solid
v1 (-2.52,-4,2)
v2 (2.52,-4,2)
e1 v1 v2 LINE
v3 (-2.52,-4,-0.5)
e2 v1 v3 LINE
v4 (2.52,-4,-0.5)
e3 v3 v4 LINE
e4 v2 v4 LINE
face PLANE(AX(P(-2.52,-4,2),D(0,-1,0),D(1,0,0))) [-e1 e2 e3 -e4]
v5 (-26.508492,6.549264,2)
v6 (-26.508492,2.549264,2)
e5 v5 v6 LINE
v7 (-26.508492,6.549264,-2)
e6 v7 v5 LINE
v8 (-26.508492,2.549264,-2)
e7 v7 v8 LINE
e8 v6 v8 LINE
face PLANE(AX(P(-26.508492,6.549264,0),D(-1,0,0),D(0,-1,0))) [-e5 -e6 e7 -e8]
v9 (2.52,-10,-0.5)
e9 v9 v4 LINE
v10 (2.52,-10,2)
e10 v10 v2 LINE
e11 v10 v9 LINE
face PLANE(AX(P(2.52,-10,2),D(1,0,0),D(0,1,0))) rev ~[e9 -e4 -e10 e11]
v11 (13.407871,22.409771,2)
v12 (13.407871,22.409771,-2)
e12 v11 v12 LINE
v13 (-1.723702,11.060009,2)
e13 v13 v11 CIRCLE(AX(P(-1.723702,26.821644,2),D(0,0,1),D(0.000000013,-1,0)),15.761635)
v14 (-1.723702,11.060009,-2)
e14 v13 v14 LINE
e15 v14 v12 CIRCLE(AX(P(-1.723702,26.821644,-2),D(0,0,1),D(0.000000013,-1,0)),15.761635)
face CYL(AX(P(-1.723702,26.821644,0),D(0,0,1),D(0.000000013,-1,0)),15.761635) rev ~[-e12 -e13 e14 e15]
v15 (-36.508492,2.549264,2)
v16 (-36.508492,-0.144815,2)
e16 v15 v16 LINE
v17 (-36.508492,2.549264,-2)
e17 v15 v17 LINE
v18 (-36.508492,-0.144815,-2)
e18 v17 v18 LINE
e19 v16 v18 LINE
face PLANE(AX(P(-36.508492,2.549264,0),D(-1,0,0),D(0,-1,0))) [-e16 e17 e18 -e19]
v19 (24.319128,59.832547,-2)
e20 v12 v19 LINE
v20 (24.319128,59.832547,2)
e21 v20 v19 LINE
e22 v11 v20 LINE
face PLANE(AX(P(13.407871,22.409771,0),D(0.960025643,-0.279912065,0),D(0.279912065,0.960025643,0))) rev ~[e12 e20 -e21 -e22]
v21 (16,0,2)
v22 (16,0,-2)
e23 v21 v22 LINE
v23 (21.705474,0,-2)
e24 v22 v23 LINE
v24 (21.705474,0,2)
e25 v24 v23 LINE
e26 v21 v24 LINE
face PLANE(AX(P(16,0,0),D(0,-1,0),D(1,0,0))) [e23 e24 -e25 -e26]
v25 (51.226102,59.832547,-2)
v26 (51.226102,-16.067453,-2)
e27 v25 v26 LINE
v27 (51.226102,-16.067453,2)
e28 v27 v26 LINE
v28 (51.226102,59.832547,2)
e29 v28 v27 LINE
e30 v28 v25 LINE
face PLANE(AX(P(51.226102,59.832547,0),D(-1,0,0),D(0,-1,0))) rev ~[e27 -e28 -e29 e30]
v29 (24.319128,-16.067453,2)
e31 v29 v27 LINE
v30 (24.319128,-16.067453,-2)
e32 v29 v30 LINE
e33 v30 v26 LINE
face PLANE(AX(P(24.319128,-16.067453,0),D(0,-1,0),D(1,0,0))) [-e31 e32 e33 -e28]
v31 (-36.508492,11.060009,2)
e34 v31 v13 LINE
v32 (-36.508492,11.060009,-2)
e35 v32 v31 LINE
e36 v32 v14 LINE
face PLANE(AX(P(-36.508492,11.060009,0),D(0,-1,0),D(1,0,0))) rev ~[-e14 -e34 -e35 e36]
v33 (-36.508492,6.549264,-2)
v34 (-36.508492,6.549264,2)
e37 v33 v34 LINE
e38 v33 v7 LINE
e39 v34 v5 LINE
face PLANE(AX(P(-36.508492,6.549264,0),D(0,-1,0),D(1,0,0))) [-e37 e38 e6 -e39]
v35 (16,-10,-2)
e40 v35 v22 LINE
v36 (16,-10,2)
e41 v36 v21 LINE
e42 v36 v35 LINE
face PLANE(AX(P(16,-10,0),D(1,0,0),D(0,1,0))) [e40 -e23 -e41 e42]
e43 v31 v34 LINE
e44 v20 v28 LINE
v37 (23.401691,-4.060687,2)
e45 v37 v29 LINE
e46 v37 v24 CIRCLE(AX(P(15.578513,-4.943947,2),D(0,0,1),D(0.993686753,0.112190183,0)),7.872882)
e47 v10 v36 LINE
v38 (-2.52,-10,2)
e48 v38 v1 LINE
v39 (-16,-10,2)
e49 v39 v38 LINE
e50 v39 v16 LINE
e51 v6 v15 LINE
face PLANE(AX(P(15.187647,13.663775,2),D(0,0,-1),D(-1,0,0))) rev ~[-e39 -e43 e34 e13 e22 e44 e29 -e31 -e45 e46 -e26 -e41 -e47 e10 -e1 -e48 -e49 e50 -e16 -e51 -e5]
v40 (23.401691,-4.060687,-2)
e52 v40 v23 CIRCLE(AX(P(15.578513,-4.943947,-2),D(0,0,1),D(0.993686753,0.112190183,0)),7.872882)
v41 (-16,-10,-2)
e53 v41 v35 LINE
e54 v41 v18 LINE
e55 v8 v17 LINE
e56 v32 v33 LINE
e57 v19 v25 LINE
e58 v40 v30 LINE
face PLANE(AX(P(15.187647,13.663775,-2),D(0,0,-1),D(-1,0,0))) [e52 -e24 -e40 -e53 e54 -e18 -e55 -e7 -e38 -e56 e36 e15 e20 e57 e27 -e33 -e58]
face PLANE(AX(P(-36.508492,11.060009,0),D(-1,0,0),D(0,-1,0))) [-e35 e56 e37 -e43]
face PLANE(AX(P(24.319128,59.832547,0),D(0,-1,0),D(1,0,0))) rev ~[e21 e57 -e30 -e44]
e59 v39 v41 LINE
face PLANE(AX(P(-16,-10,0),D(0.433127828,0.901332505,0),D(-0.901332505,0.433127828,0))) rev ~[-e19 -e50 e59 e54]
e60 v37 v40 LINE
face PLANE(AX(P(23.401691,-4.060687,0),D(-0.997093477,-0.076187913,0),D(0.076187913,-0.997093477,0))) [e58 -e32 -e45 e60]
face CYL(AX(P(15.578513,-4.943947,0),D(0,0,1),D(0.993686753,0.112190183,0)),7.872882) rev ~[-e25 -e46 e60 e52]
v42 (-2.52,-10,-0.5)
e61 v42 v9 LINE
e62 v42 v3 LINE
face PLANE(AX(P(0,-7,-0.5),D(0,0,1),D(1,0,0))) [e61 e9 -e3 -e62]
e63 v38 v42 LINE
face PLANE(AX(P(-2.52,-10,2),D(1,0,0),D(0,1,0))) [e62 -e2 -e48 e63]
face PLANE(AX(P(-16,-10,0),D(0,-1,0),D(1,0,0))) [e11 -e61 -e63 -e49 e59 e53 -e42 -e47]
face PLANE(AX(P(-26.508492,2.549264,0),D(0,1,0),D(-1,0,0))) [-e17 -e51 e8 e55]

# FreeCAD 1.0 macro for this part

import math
import FreeCAD as App
import Part
import Sketcher

V = App.Vector

doc = App.newDocument("Part")
params = doc.addObject("Spreadsheet::Sheet", "Params")
for row, (alias, value) in enumerate([
    ("sketch1_width", "10 mm"),
    ("sketch1_width2", "10 mm"),
    ("sketch1_width3", "32 mm"),
    ("sketch1_height", "4 mm"),
    ("sketch1_height2", "10 mm"),
    ("pad1_length", "4 mm"),
    ("sketch2_height", "6 mm"),
    ("sketch2_width", "5.04 mm"),
    ("pocket1_length", "2.5 mm"),
], start=1):
    params.set(f"A{row}", alias)
    params.set(f"B{row}", "=" + value)
    params.setAlias(f"B{row}", alias)

body = doc.addObject("PartDesign::Body", "Body")

# Sketch on XY plane
sketch1 = body.newObject("Sketcher::SketchObject", "Sketch")
sketch1.AttachmentSupport = (doc.getObject("XY_Plane"), [""])
sketch1.MapMode = "FlatFace"
sketch1.addGeometry([
    Part.LineSegment(V(-1.723702, 11.060009, 0), V(-36.508492, 11.060009, 0)),  # 0
    Part.LineSegment(V(-36.508492, 11.060009, 0), V(-36.508492, 6.549264, 0)),  # 1
    Part.LineSegment(V(-36.508492, 6.549264, 0), V(-26.508492, 6.549264, 0)),  # 2
    Part.LineSegment(V(-26.508492, 6.549264, 0), V(-26.508492, 2.549264, 0)),  # 3
    Part.LineSegment(V(-26.508492, 2.549264, 0), V(-36.508492, 2.549264, 0)),  # 4
    Part.LineSegment(V(-36.508492, 2.549264, 0), V(-36.508492, -0.144815, 0)),  # 5
    Part.LineSegment(V(-36.508492, -0.144815, 0), V(-16, -10, 0)),  # 6
    Part.LineSegment(V(-16, -10, 0), V(16, -10, 0)),  # 7
    Part.LineSegment(V(16, -10, 0), V(16, 0, 0)),  # 8
    Part.LineSegment(V(16, 0, 0), V(21.705474, 0, 0)),  # 9
    Part.ArcOfCircle(Part.Circle(V(15.578513, -4.943947, 0), V(0, 0, 1), 7.872882), math.radians(6.441585), math.radians(38.900637)),  # 10
    Part.LineSegment(V(23.401691, -4.060687, 0), V(24.319128, -16.067453, 0)),  # 11
    Part.LineSegment(V(24.319128, -16.067453, 0), V(51.226102, -16.067453, 0)),  # 12
    Part.LineSegment(V(51.226102, -16.067453, 0), V(51.226102, 59.832547, 0)),  # 13
    Part.LineSegment(V(51.226102, 59.832547, 0), V(24.319128, 59.832547, 0)),  # 14
    Part.LineSegment(V(24.319128, 59.832547, 0), V(13.407871, 22.409771, 0)),  # 15
    Part.ArcOfCircle(Part.Circle(V(-1.723702, 26.821644, 0), V(0, 0, 1), 15.761635), math.radians(-89.999999), math.radians(-16.25496)),  # 16
], False)
sketch1.addConstraint([
    Sketcher.Constraint("Coincident", 0, 2, 1, 1),
    Sketcher.Constraint("Coincident", 1, 2, 2, 1),
    Sketcher.Constraint("Coincident", 2, 2, 3, 1),
    Sketcher.Constraint("Coincident", 3, 2, 4, 1),
    Sketcher.Constraint("Coincident", 4, 2, 5, 1),
    Sketcher.Constraint("Coincident", 5, 2, 6, 1),
    Sketcher.Constraint("Coincident", 6, 2, 7, 1),
    Sketcher.Constraint("Coincident", 7, 2, 8, 1),
    Sketcher.Constraint("Coincident", 8, 2, 9, 1),
    Sketcher.Constraint("Coincident", 9, 2, 10, 2),
    Sketcher.Constraint("Coincident", 10, 1, 11, 1),
    Sketcher.Constraint("Coincident", 11, 2, 12, 1),
    Sketcher.Constraint("Coincident", 12, 2, 13, 1),
    Sketcher.Constraint("Coincident", 13, 2, 14, 1),
    Sketcher.Constraint("Coincident", 14, 2, 15, 1),
    Sketcher.Constraint("Coincident", 15, 2, 16, 2),
    Sketcher.Constraint("Coincident", 16, 1, 0, 1),
    Sketcher.Constraint("Horizontal", 0),
    Sketcher.Constraint("Vertical", 1),
    Sketcher.Constraint("Horizontal", 2),
    Sketcher.Constraint("Vertical", 3),
    Sketcher.Constraint("Horizontal", 4),
    Sketcher.Constraint("Vertical", 5),
    Sketcher.Constraint("Horizontal", 7),
    Sketcher.Constraint("Vertical", 8),
    Sketcher.Constraint("Horizontal", 9),
    Sketcher.Constraint("Horizontal", 12),
    Sketcher.Constraint("Vertical", 13),
    Sketcher.Constraint("Horizontal", 14),
    Sketcher.Constraint("PointOnObject", 8, 2, -1),
    Sketcher.Constraint("DistanceX", 2, 1, 2, 2, 10.0),
    Sketcher.Constraint("DistanceX", 4, 2, 4, 1, 10.0),
    Sketcher.Constraint("DistanceX", 7, 1, 7, 2, 32.0),
    Sketcher.Constraint("DistanceY", 3, 2, 3, 1, 4.0),
    Sketcher.Constraint("DistanceY", 8, 1, 8, 2, 10.0),
    Sketcher.Constraint("DistanceY", 13, 1, 13, 2, 75.9),
    Sketcher.Constraint("DistanceX", 6, 2, -1, 1, 16.0),
    Sketcher.Constraint("Radius", 10, 7.872882),
    Sketcher.Constraint("Radius", 16, 15.761635),
    Sketcher.Constraint("DistanceX", 0, 2, 0, 1, 34.78479),
    Sketcher.Constraint("DistanceY", 5, 2, 5, 1, 2.694079),
    Sketcher.Constraint("DistanceX", -1, 1, 12, 2, 51.226102),
    Sketcher.Constraint("DistanceX", 16, 1, -1, 1, 1.723702),
    Sketcher.Constraint("DistanceX", 9, 1, 9, 2, 5.705474),
    Sketcher.Constraint("DistanceX", 12, 1, 12, 2, 26.906974),
    Sketcher.Constraint("DistanceX", 14, 2, 14, 1, 26.906974),
    Sketcher.Constraint("DistanceY", 1, 2, 1, 1, 4.510745),
    Sketcher.Constraint("DistanceY", -1, 1, 0, 2, 11.060009),
    Sketcher.Constraint("DistanceX", -1, 1, 10, 1, 23.401691),
    Sketcher.Constraint("DistanceX", -1, 1, 15, 2, 13.407871),
    Sketcher.Constraint("DistanceY", -1, 1, 15, 2, 22.409771),
    Sketcher.Constraint("DistanceY", 10, 3, 16, 3, 31.765591),
    Sketcher.Constraint("Distance", 11, 12.041766),
])
sketch1.setExpression("Constraints[30]", "Params.sketch1_width")
sketch1.setExpression("Constraints[31]", "Params.sketch1_width2")
sketch1.setExpression("Constraints[32]", "Params.sketch1_width3")
sketch1.setExpression("Constraints[33]", "Params.sketch1_height")
sketch1.setExpression("Constraints[34]", "Params.sketch1_height2")
pad1 = body.newObject("PartDesign::Pad", "Pad")
pad1.Profile = sketch1
pad1.setExpression("Length", "Params.pad1_length")
pad1.Midplane = True

# Sketch on XY plane
sketch2 = body.newObject("Sketcher::SketchObject", "Sketch001")
sketch2.AttachmentSupport = (doc.getObject("XY_Plane"), [""])
sketch2.MapMode = "FlatFace"
sketch2.AttachmentOffset = App.Placement(V(0, 0, 2), App.Rotation())
sketch2.addGeometry([
    Part.LineSegment(V(-3, -4, 0), V(-3, -10, 0)),
    Part.LineSegment(V(-3, -10, 0), V(3, -10, 0)),
    Part.LineSegment(V(3, -10, 0), V(3, -4, 0)),
    Part.LineSegment(V(3, -4, 0), V(-3, -4, 0)),
], False)
sketch2.addConstraint([
    Sketcher.Constraint("Coincident", 0, 2, 1, 1),
    Sketcher.Constraint("Coincident", 1, 2, 2, 1),
    Sketcher.Constraint("Coincident", 2, 2, 3, 1),
    Sketcher.Constraint("Coincident", 3, 2, 0, 1),
    Sketcher.Constraint("Vertical", 0),
    Sketcher.Constraint("Horizontal", 1),
    Sketcher.Constraint("Vertical", 2),
    Sketcher.Constraint("Horizontal", 3),
    Sketcher.Constraint("DistanceY", 0, 2, 0, 1, 6.0),
    Sketcher.Constraint("DistanceY", 0, 2, -1, 1, 10.0),
    Sketcher.Constraint("DistanceX", 1, 1, 1, 2, 5.04),
    Sketcher.Constraint("DistanceX", 0, 2, -1, 1, 2.52),
])
sketch2.setExpression("Constraints[8]", "Params.sketch2_height")
sketch2.setExpression("Constraints[10]", "Params.sketch2_width")
pocket1 = body.newObject("PartDesign::Pocket", "Pocket")
pocket1.Profile = sketch2
pocket1.setExpression("Length", "Params.pocket1_length")

doc.recompute()
